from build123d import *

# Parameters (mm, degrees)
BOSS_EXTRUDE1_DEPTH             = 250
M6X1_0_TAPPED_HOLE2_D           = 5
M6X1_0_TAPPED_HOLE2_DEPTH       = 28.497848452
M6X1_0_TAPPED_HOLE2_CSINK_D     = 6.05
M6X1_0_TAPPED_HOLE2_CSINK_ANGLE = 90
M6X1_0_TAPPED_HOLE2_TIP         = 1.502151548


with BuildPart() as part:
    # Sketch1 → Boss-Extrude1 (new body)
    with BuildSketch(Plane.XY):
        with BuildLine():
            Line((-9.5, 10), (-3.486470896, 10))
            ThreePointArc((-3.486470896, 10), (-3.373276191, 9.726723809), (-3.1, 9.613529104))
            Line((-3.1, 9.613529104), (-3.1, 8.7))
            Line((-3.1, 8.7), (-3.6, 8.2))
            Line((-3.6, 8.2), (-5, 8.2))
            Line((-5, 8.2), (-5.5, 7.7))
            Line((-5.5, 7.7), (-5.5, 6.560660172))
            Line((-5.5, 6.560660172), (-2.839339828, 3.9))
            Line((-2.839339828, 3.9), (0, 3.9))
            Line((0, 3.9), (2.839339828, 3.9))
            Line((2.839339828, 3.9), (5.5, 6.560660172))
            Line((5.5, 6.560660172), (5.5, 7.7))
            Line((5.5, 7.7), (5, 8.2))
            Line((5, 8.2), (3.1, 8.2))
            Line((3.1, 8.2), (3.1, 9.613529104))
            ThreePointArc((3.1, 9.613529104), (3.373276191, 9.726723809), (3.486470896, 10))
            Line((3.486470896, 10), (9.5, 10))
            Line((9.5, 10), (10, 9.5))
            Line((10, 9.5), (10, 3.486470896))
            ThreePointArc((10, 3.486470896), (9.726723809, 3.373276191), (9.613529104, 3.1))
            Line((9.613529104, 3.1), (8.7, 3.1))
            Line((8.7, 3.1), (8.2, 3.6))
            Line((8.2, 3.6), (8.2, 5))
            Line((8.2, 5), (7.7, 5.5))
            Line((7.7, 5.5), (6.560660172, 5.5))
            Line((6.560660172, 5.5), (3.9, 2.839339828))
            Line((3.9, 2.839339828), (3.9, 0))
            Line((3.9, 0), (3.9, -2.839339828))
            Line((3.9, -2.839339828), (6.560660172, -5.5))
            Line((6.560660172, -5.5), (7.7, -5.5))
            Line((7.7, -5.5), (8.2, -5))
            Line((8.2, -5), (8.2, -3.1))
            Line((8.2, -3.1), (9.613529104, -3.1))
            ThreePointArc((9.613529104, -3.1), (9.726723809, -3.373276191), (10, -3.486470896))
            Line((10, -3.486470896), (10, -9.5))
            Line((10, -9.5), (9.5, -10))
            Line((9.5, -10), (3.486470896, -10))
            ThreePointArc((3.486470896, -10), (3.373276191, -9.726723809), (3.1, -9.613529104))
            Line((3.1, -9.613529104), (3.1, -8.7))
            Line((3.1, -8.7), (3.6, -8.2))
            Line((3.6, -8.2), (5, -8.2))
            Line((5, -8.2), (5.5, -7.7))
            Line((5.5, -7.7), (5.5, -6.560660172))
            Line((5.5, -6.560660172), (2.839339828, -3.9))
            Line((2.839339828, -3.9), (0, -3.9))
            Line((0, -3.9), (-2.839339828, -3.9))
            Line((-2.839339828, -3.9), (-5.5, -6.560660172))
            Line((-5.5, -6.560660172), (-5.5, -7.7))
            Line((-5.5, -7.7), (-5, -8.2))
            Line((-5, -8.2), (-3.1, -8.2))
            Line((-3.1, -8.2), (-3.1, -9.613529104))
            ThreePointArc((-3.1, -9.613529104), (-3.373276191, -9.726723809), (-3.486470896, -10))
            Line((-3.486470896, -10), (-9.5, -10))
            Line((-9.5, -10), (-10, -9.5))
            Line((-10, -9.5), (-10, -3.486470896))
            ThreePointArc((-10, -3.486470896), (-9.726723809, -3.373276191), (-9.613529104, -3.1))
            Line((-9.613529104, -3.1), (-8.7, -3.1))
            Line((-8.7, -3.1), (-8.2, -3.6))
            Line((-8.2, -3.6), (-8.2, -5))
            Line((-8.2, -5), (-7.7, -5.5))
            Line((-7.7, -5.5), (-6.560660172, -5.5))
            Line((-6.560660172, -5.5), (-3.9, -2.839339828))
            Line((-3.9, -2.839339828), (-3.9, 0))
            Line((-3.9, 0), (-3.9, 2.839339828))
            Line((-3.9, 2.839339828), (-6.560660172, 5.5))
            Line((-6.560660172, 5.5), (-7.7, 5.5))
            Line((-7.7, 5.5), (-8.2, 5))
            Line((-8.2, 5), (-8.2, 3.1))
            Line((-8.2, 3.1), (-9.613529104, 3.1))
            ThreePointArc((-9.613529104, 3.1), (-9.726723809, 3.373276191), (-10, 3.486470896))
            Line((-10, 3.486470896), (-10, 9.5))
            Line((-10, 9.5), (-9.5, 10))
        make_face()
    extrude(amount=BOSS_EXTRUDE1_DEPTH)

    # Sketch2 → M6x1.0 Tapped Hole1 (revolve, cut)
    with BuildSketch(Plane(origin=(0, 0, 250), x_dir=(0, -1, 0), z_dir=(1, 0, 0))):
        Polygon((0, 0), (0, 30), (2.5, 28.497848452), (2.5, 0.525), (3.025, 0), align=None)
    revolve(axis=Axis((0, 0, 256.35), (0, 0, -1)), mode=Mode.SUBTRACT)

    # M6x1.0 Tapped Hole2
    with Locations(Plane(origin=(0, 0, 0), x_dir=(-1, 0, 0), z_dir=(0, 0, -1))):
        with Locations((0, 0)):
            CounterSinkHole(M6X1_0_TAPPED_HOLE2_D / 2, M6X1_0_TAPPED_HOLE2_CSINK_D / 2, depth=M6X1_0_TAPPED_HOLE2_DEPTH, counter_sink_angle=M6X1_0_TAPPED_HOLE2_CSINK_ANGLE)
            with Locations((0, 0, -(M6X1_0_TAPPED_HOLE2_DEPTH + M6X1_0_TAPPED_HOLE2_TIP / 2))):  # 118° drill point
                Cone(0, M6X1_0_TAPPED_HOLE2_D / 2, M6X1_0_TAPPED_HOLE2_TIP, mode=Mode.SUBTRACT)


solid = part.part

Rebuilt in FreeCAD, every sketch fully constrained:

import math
import FreeCAD as App
import Part
import Sketcher
Q = App.Units.Quantity

doc = App.newDocument("Part")
body = doc.addObject("PartDesign::Body", "Body")

# Sketch on XY plane
sketch1 = doc.addObject("Sketcher::SketchObject", "Sketch")
body.addObject(sketch1)
sketch1.AttachmentSupport = (doc.XY_Plane, [""])
sketch1.MapMode = "FlatFace"
sketch1.addGeometry([
    Part.LineSegment(App.Vector(-3.486471, 10, 0), App.Vector(-9.5, 10, 0)),  # 0
    Part.LineSegment(App.Vector(-9.5, 10, 0), App.Vector(-10, 9.5, 0)),  # 1
    Part.LineSegment(App.Vector(-10, 9.5, 0), App.Vector(-10, 3.486471, 0)),  # 2
    Part.ArcOfCircle(Part.Circle(App.Vector(-10, 3.1, 0), App.Vector(0, 0, 1), 0.386471), math.radians(0), math.radians(90)),  # 3
    Part.LineSegment(App.Vector(-9.613529, 3.1, 0), App.Vector(-8.2, 3.1, 0)),  # 4
    Part.LineSegment(App.Vector(-8.2, 3.1, 0), App.Vector(-8.2, 5, 0)),  # 5
    Part.LineSegment(App.Vector(-8.2, 5, 0), App.Vector(-7.7, 5.5, 0)),  # 6
    Part.LineSegment(App.Vector(-7.7, 5.5, 0), App.Vector(-6.56066, 5.5, 0)),  # 7
    Part.LineSegment(App.Vector(-6.56066, 5.5, 0), App.Vector(-3.9, 2.83934, 0)),  # 8
    Part.LineSegment(App.Vector(-3.9, 2.83934, 0), App.Vector(-3.9, -2.83934, 0)),  # 9
    Part.LineSegment(App.Vector(-3.9, -2.83934, 0), App.Vector(-6.56066, -5.5, 0)),  # 10
    Part.LineSegment(App.Vector(-6.56066, -5.5, 0), App.Vector(-7.7, -5.5, 0)),  # 11
    Part.LineSegment(App.Vector(-7.7, -5.5, 0), App.Vector(-8.2, -5, 0)),  # 12
    Part.LineSegment(App.Vector(-8.2, -5, 0), App.Vector(-8.2, -3.6, 0)),  # 13
    Part.LineSegment(App.Vector(-8.2, -3.6, 0), App.Vector(-8.7, -3.1, 0)),  # 14
    Part.LineSegment(App.Vector(-8.7, -3.1, 0), App.Vector(-9.613529, -3.1, 0)),  # 15
    Part.ArcOfCircle(Part.Circle(App.Vector(-10, -3.1, 0), App.Vector(0, 0, 1), 0.386471), math.radians(-90), math.radians(0)),  # 16
    Part.LineSegment(App.Vector(-10, -3.486471, 0), App.Vector(-10, -9.5, 0)),  # 17
    Part.LineSegment(App.Vector(-10, -9.5, 0), App.Vector(-9.5, -10, 0)),  # 18
    Part.LineSegment(App.Vector(-9.5, -10, 0), App.Vector(-3.486471, -10, 0)),  # 19
    Part.ArcOfCircle(Part.Circle(App.Vector(-3.1, -10, 0), App.Vector(0, 0, 1), 0.386471), math.radians(90), math.radians(180)),  # 20
    Part.LineSegment(App.Vector(-3.1, -9.613529, 0), App.Vector(-3.1, -8.2, 0)),  # 21
    Part.LineSegment(App.Vector(-3.1, -8.2, 0), App.Vector(-5, -8.2, 0)),  # 22
    Part.LineSegment(App.Vector(-5, -8.2, 0), App.Vector(-5.5, -7.7, 0)),  # 23
    Part.LineSegment(App.Vector(-5.5, -7.7, 0), App.Vector(-5.5, -6.56066, 0)),  # 24
    Part.LineSegment(App.Vector(-5.5, -6.56066, 0), App.Vector(-2.83934, -3.9, 0)),  # 25
    Part.LineSegment(App.Vector(-2.83934, -3.9, 0), App.Vector(2.83934, -3.9, 0)),  # 26
    Part.LineSegment(App.Vector(2.83934, -3.9, 0), App.Vector(5.5, -6.56066, 0)),  # 27
    Part.LineSegment(App.Vector(5.5, -6.56066, 0), App.Vector(5.5, -7.7, 0)),  # 28
    Part.LineSegment(App.Vector(5.5, -7.7, 0), App.Vector(5, -8.2, 0)),  # 29
    Part.LineSegment(App.Vector(5, -8.2, 0), App.Vector(3.6, -8.2, 0)),  # 30
    Part.LineSegment(App.Vector(3.6, -8.2, 0), App.Vector(3.1, -8.7, 0)),  # 31
    Part.LineSegment(App.Vector(3.1, -8.7, 0), App.Vector(3.1, -9.613529, 0)),  # 32
    Part.ArcOfCircle(Part.Circle(App.Vector(3.1, -10, 0), App.Vector(0, 0, 1), 0.386471), math.radians(0), math.radians(90)),  # 33
    Part.LineSegment(App.Vector(3.486471, -10, 0), App.Vector(9.5, -10, 0)),  # 34
    Part.LineSegment(App.Vector(9.5, -10, 0), App.Vector(10, -9.5, 0)),  # 35
    Part.LineSegment(App.Vector(10, -9.5, 0), App.Vector(10, -3.486471, 0)),  # 36
    Part.ArcOfCircle(Part.Circle(App.Vector(10, -3.1, 0), App.Vector(0, 0, 1), 0.386471), math.radians(-180), math.radians(-90)),  # 37
    Part.LineSegment(App.Vector(9.613529, -3.1, 0), App.Vector(8.2, -3.1, 0)),  # 38
    Part.LineSegment(App.Vector(8.2, -3.1, 0), App.Vector(8.2, -5, 0)),  # 39
    Part.LineSegment(App.Vector(8.2, -5, 0), App.Vector(7.7, -5.5, 0)),  # 40
    Part.LineSegment(App.Vector(7.7, -5.5, 0), App.Vector(6.56066, -5.5, 0)),  # 41
    Part.LineSegment(App.Vector(6.56066, -5.5, 0), App.Vector(3.9, -2.83934, 0)),  # 42
    Part.LineSegment(App.Vector(3.9, -2.83934, 0), App.Vector(3.9, 2.83934, 0)),  # 43
    Part.LineSegment(App.Vector(3.9, 2.83934, 0), App.Vector(6.56066, 5.5, 0)),  # 44
    Part.LineSegment(App.Vector(6.56066, 5.5, 0), App.Vector(7.7, 5.5, 0)),  # 45
    Part.LineSegment(App.Vector(7.7, 5.5, 0), App.Vector(8.2, 5, 0)),  # 46
    Part.LineSegment(App.Vector(8.2, 5, 0), App.Vector(8.2, 3.6, 0)),  # 47
    Part.LineSegment(App.Vector(8.2, 3.6, 0), App.Vector(8.7, 3.1, 0)),  # 48
    Part.LineSegment(App.Vector(8.7, 3.1, 0), App.Vector(9.613529, 3.1, 0)),  # 49
    Part.ArcOfCircle(Part.Circle(App.Vector(10, 3.1, 0), App.Vector(0, 0, 1), 0.386471), math.radians(90), math.radians(180)),  # 50
    Part.LineSegment(App.Vector(10, 3.486471, 0), App.Vector(10, 9.5, 0)),  # 51
    Part.LineSegment(App.Vector(10, 9.5, 0), App.Vector(9.5, 10, 0)),  # 52
    Part.LineSegment(App.Vector(9.5, 10, 0), App.Vector(3.486471, 10, 0)),  # 53
    Part.ArcOfCircle(Part.Circle(App.Vector(3.1, 10, 0), App.Vector(0, 0, 1), 0.386471), math.radians(-90), math.radians(0)),  # 54
    Part.LineSegment(App.Vector(3.1, 9.613529, 0), App.Vector(3.1, 8.2, 0)),  # 55
    Part.LineSegment(App.Vector(3.1, 8.2, 0), App.Vector(5, 8.2, 0)),  # 56
    Part.LineSegment(App.Vector(5, 8.2, 0), App.Vector(5.5, 7.7, 0)),  # 57
    Part.LineSegment(App.Vector(5.5, 7.7, 0), App.Vector(5.5, 6.56066, 0)),  # 58
    Part.LineSegment(App.Vector(5.5, 6.56066, 0), App.Vector(2.83934, 3.9, 0)),  # 59
    Part.LineSegment(App.Vector(2.83934, 3.9, 0), App.Vector(-2.83934, 3.9, 0)),  # 60
    Part.LineSegment(App.Vector(-2.83934, 3.9, 0), App.Vector(-5.5, 6.56066, 0)),  # 61
    Part.LineSegment(App.Vector(-5.5, 6.56066, 0), App.Vector(-5.5, 7.7, 0)),  # 62
    Part.LineSegment(App.Vector(-5.5, 7.7, 0), App.Vector(-5, 8.2, 0)),  # 63
    Part.LineSegment(App.Vector(-5, 8.2, 0), App.Vector(-3.6, 8.2, 0)),  # 64
    Part.LineSegment(App.Vector(-3.6, 8.2, 0), App.Vector(-3.1, 8.7, 0)),  # 65
    Part.LineSegment(App.Vector(-3.1, 8.7, 0), App.Vector(-3.1, 9.613529, 0)),  # 66
    Part.ArcOfCircle(Part.Circle(App.Vector(-3.1, 10, 0), App.Vector(0, 0, 1), 0.386471), math.radians(-180), math.radians(-90)),  # 67
], False)
sketch1.addConstraint([
    Sketcher.Constraint("Coincident", 0, 2, 1, 1),
    Sketcher.Constraint("Coincident", 1, 2, 2, 1),
    Sketcher.Constraint("Coincident", 2, 2, 3, 2),
    Sketcher.Constraint("Coincident", 3, 1, 4, 1),
    Sketcher.Constraint("Coincident", 4, 2, 5, 1),
    Sketcher.Constraint("Coincident", 5, 2, 6, 1),
    Sketcher.Constraint("Coincident", 6, 2, 7, 1),
    Sketcher.Constraint("Coincident", 7, 2, 8, 1),
    Sketcher.Constraint("Coincident", 8, 2, 9, 1),
    Sketcher.Constraint("Coincident", 9, 2, 10, 1),
    Sketcher.Constraint("Coincident", 10, 2, 11, 1),
    Sketcher.Constraint("Coincident", 11, 2, 12, 1),
    Sketcher.Constraint("Coincident", 12, 2, 13, 1),
    Sketcher.Constraint("Coincident", 13, 2, 14, 1),
    Sketcher.Constraint("Coincident", 14, 2, 15, 1),
    Sketcher.Constraint("Coincident", 15, 2, 16, 2),
    Sketcher.Constraint("Coincident", 16, 1, 17, 1),
    Sketcher.Constraint("Coincident", 17, 2, 18, 1),
    Sketcher.Constraint("Coincident", 18, 2, 19, 1),
    Sketcher.Constraint("Coincident", 19, 2, 20, 2),
    Sketcher.Constraint("Coincident", 20, 1, 21, 1),
    Sketcher.Constraint("Coincident", 21, 2, 22, 1),
    Sketcher.Constraint("Coincident", 22, 2, 23, 1),
    Sketcher.Constraint("Coincident", 23, 2, 24, 1),
    Sketcher.Constraint("Coincident", 24, 2, 25, 1),
    Sketcher.Constraint("Coincident", 25, 2, 26, 1),
    Sketcher.Constraint("Coincident", 26, 2, 27, 1),
    Sketcher.Constraint("Coincident", 27, 2, 28, 1),
    Sketcher.Constraint("Coincident", 28, 2, 29, 1),
    Sketcher.Constraint("Coincident", 29, 2, 30, 1),
    Sketcher.Constraint("Coincident", 30, 2, 31, 1),
    Sketcher.Constraint("Coincident", 31, 2, 32, 1),
    Sketcher.Constraint("Coincident", 32, 2, 33, 2),
    Sketcher.Constraint("Coincident", 33, 1, 34, 1),
    Sketcher.Constraint("Coincident", 34, 2, 35, 1),
    Sketcher.Constraint("Coincident", 35, 2, 36, 1),
    Sketcher.Constraint("Coincident", 36, 2, 37, 2),
    Sketcher.Constraint("Coincident", 37, 1, 38, 1),
    Sketcher.Constraint("Coincident", 38, 2, 39, 1),
    Sketcher.Constraint("Coincident", 39, 2, 40, 1),
    Sketcher.Constraint("Coincident", 40, 2, 41, 1),
    Sketcher.Constraint("Coincident", 41, 2, 42, 1),
    Sketcher.Constraint("Coincident", 42, 2, 43, 1),
    Sketcher.Constraint("Coincident", 43, 2, 44, 1),
    Sketcher.Constraint("Coincident", 44, 2, 45, 1),
    Sketcher.Constraint("Coincident", 45, 2, 46, 1),
    Sketcher.Constraint("Coincident", 46, 2, 47, 1),
    Sketcher.Constraint("Coincident", 47, 2, 48, 1),
    Sketcher.Constraint("Coincident", 48, 2, 49, 1),
    Sketcher.Constraint("Coincident", 49, 2, 50, 2),
    Sketcher.Constraint("Coincident", 50, 1, 51, 1),
    Sketcher.Constraint("Coincident", 51, 2, 52, 1),
    Sketcher.Constraint("Coincident", 52, 2, 53, 1),
    Sketcher.Constraint("Coincident", 53, 2, 54, 2),
    Sketcher.Constraint("Coincident", 54, 1, 55, 1),
    Sketcher.Constraint("Coincident", 55, 2, 56, 1),
    Sketcher.Constraint("Coincident", 56, 2, 57, 1),
    Sketcher.Constraint("Coincident", 57, 2, 58, 1),
    Sketcher.Constraint("Coincident", 58, 2, 59, 1),
    Sketcher.Constraint("Coincident", 59, 2, 60, 1),
    Sketcher.Constraint("Coincident", 60, 2, 61, 1),
    Sketcher.Constraint("Coincident", 61, 2, 62, 1),
    Sketcher.Constraint("Coincident", 62, 2, 63, 1),
    Sketcher.Constraint("Coincident", 63, 2, 64, 1),
    Sketcher.Constraint("Coincident", 64, 2, 65, 1),
    Sketcher.Constraint("Coincident", 65, 2, 66, 1),
    Sketcher.Constraint("Coincident", 66, 2, 67, 2),
    Sketcher.Constraint("Coincident", 67, 1, 0, 1),
    Sketcher.Constraint("Horizontal", 0),
    Sketcher.Constraint("Vertical", 2),
    Sketcher.Constraint("Horizontal", 4),
    Sketcher.Constraint("Vertical", 5),
    Sketcher.Constraint("Horizontal", 7),
    Sketcher.Constraint("Vertical", 9),
    Sketcher.Constraint("Horizontal", 11),
    Sketcher.Constraint("Vertical", 13),
    Sketcher.Constraint("Horizontal", 15),
    Sketcher.Constraint("Vertical", 17),
    Sketcher.Constraint("Horizontal", 19),
    Sketcher.Constraint("Vertical", 21),
    Sketcher.Constraint("Horizontal", 22),
    Sketcher.Constraint("Vertical", 24),
    Sketcher.Constraint("Horizontal", 26),
    Sketcher.Constraint("Vertical", 28),
    Sketcher.Constraint("Horizontal", 30),
    Sketcher.Constraint("Vertical", 32),
    Sketcher.Constraint("Horizontal", 34),
    Sketcher.Constraint("Vertical", 36),
    Sketcher.Constraint("Horizontal", 38),
    Sketcher.Constraint("Vertical", 39),
    Sketcher.Constraint("Horizontal", 41),
    Sketcher.Constraint("Vertical", 43),
    Sketcher.Constraint("Horizontal", 45),
    Sketcher.Constraint("Vertical", 47),
    Sketcher.Constraint("Horizontal", 49),
    Sketcher.Constraint("Vertical", 51),
    Sketcher.Constraint("Horizontal", 53),
    Sketcher.Constraint("Vertical", 55),
    Sketcher.Constraint("Horizontal", 56),
    Sketcher.Constraint("Vertical", 58),
    Sketcher.Constraint("Horizontal", 60),
    Sketcher.Constraint("Vertical", 62),
    Sketcher.Constraint("Horizontal", 64),
    Sketcher.Constraint("Vertical", 66),
    Sketcher.Constraint("Equal", 3, 16),
    Sketcher.Constraint("Equal", 16, 20),
    Sketcher.Constraint("Equal", 20, 33),
    Sketcher.Constraint("Equal", 33, 37),
    Sketcher.Constraint("Equal", 37, 50),
    Sketcher.Constraint("Equal", 50, 54),
    Sketcher.Constraint("Equal", 54, 67),
    Sketcher.Constraint("Symmetric", 3, 3, 37, 3, -1, 1),
    Sketcher.Constraint("Symmetric", 16, 3, 50, 3, -1, 1),
    Sketcher.Constraint("Symmetric", 20, 3, 54, 3, -1, 1),
    Sketcher.Constraint("Symmetric", 33, 3, 67, 3, -1, 1),
    Sketcher.Constraint("Symmetric", 0, 2, 34, 2, -1, 1),
    Sketcher.Constraint("Symmetric", 1, 2, 35, 2, -1, 1),
    Sketcher.Constraint("Symmetric", 4, 2, 38, 2, -1, 1),
    Sketcher.Constraint("Symmetric", 6, 2, 40, 2, -1, 1),
    Sketcher.Constraint("Symmetric", 8, 2, 42, 2, -1, 1),
    Sketcher.Constraint("Symmetric", 10, 2, 44, 2, -1, 1),
    Sketcher.Constraint("Symmetric", 12, 2, 46, 2, -1, 1),
    Sketcher.Constraint("Symmetric", 14, 2, 48, 2, -1, 1),
    Sketcher.Constraint("Symmetric", 17, 2, 51, 2, -1, 1),
    Sketcher.Constraint("Symmetric", 18, 2, 52, 2, -1, 1),
    Sketcher.Constraint("Symmetric", 21, 2, 55, 2, -1, 1),
    Sketcher.Constraint("Symmetric", 23, 2, 57, 2, -1, 1),
    Sketcher.Constraint("Symmetric", 25, 2, 59, 2, -1, 1),
    Sketcher.Constraint("Symmetric", 27, 2, 61, 2, -1, 1),
    Sketcher.Constraint("Symmetric", 29, 2, 63, 2, -1, 1),
    Sketcher.Constraint("Symmetric", 31, 2, 65, 2, -1, 1),
    Sketcher.Constraint("Symmetric", 20, 3, 33, 3, -2),
    Sketcher.Constraint("Symmetric", 16, 3, 37, 3, -2),
    Sketcher.Constraint("Symmetric", 24, 2, 27, 2, -2),
    Sketcher.Constraint("Symmetric", 22, 2, 29, 2, -2),
    Sketcher.Constraint("Symmetric", 18, 2, 34, 2, -2),
    Sketcher.Constraint("Symmetric", 17, 2, 35, 2, -2),
    Sketcher.Constraint("Symmetric", 12, 2, 39, 2, -2),
    Sketcher.Constraint("Symmetric", 11, 2, 40, 2, -2),
    Sketcher.Constraint("Parallel", 1, 6),
    Sketcher.Constraint("Perpendicular", 6, 8),
    Sketcher.Constraint("Perpendicular", 8, 10),
    Sketcher.Constraint("Perpendicular", 10, 12),
    Sketcher.Constraint("Parallel", 12, 14),
    Sketcher.Constraint("Parallel", 14, 18),
    Sketcher.Constraint("Parallel", 18, 23),
    Sketcher.Constraint("Perpendicular", 23, 25),
    Sketcher.Constraint("Perpendicular", 25, 27),
    Sketcher.Constraint("Perpendicular", 27, 29),
    Sketcher.Constraint("Parallel", 29, 31),
    Sketcher.Constraint("Perpendicular", 40, 42),
    Sketcher.Constraint("Perpendicular", 42, 44),
    Sketcher.Constraint("Perpendicular", 44, 46),
    Sketcher.Constraint("Parallel", 46, 48),
    Sketcher.Constraint("Parallel", 52, 57),
    Sketcher.Constraint("Perpendicular", 57, 59),
    Sketcher.Constraint("Perpendicular", 59, 61),
    Sketcher.Constraint("Perpendicular", 61, 63),
    Sketcher.Constraint("Parallel", 63, 65),
    Sketcher.Constraint("Horizontal", 67, 3, 0, 2),
    Sketcher.Constraint("Horizontal", 50, 3, 3, 1),
    Sketcher.Constraint("Horizontal", 37, 3, 14, 2),
    Sketcher.Constraint("Horizontal", 9, 2, 42, 2),
    Sketcher.Constraint("Vertical", 16, 3, 1, 2),
    Sketcher.Constraint("Vertical", 67, 3, 20, 1),
    Sketcher.Constraint("Vertical", 54, 3, 31, 2),
    Sketcher.Constraint("Equal", 53, 2),
    Sketcher.Constraint("Equal", 56, 5),
    Sketcher.Constraint("Equal", 60, 9),
    Sketcher.Constraint("Equal", 64, 13),
    Sketcher.Constraint("Equal", 38, 21),
    Sketcher.Constraint("Equal", 45, 24),
    Sketcher.Constraint("Equal", 1, 6),
    Sketcher.Constraint("Equal", 12, 14),
    Sketcher.Constraint("Equal", 18, 23),
    Sketcher.Constraint("Equal", 10, 25),
    Sketcher.Constraint("DistanceX", 22, 2, 22, 1, 1.9),
    Sketcher.Constraint("DistanceX", 30, 2, 30, 1, 1.4),
    Sketcher.Constraint("DistanceX", 3, 3, -1, 1, 10.0),
    Sketcher.Constraint("DistanceY", -1, 1, 5, 2, 5.0),
    Sketcher.Constraint("DistanceX", 4, 2, -1, 1, 8.2),
    Sketcher.Constraint("DistanceX", 8, 2, -1, 1, 3.9),
    Sketcher.Constraint("Radius", 3, 0.386471),
    Sketcher.Constraint("DistanceX", 7, 1, 7, 2, 1.13934),
])
pad1 = doc.addObject("PartDesign::Pad", "Pad")
body.addObject(pad1)
pad1.Profile = sketch1
pad1.Length = 250

# Sketch on YZ plane
sketch2 = doc.addObject("Sketcher::SketchObject", "Sketch001")
body.addObject(sketch2)
sketch2.AttachmentSupport = (doc.YZ_Plane, [""])
sketch2.MapMode = "FlatFace"
sketch2.addGeometry([
    Part.LineSegment(App.Vector(0, 220, 0), App.Vector(0, 250, 0)),  # 0
    Part.LineSegment(App.Vector(0, 250, 0), App.Vector(-3.025, 250, 0)),  # 1
    Part.LineSegment(App.Vector(-3.025, 250, 0), App.Vector(-2.5, 249.475, 0)),  # 2
    Part.LineSegment(App.Vector(-2.5, 249.475, 0), App.Vector(-2.5, 221.502152, 0)),  # 3
    Part.LineSegment(App.Vector(-2.5, 221.502152, 0), App.Vector(0, 220, 0)),  # 4
], False)
sketch2.addConstraint([
    Sketcher.Constraint("Coincident", 0, 2, 1, 1),
    Sketcher.Constraint("Coincident", 1, 2, 2, 1),
    Sketcher.Constraint("Coincident", 2, 2, 3, 1),
    Sketcher.Constraint("Coincident", 3, 2, 4, 1),
    Sketcher.Constraint("Coincident", 4, 2, 0, 1),
    Sketcher.Constraint("Vertical", 0),
    Sketcher.Constraint("Horizontal", 1),
    Sketcher.Constraint("Vertical", 3),
    Sketcher.Constraint("PointOnObject", 0, 2, -2),
    Sketcher.Constraint("DistanceY", 0, 1, 0, 2, 30.0),
    Sketcher.Constraint("Angle", 2, Q("-45 deg")),
    Sketcher.Constraint("Angle", 4, Q("-31 deg")),
    Sketcher.Constraint("DistanceY", -1, 1, 0, 2, 250.0),
    Sketcher.Constraint("DistanceX", 2, 2, -1, 1, 2.5),
    Sketcher.Constraint("DistanceX", 1, 2, 1, 1, 3.025),
])
groove = doc.addObject("PartDesign::Groove", "Groove")
body.addObject(groove)
groove.Profile = sketch2
groove.ReferenceAxis = (sketch2, ["V_Axis"])
groove.Angle = 360

# Sketch on XY plane
sketch3 = doc.addObject("Sketcher::SketchObject", "Sketch002")
body.addObject(sketch3)
sketch3.AttachmentSupport = (doc.XY_Plane, [""])
sketch3.MapMode = "FlatFace"
sketch3.addGeometry(Part.Circle(App.Vector(0, 0, 0), App.Vector(0, 0, 1), 2.5), False)
sketch3.addConstraint([
    Sketcher.Constraint("Coincident", 0, 3, -1, 1),
    Sketcher.Constraint("Diameter", 0, 5.0),
])
doc.recompute()
hole = doc.addObject("PartDesign::Hole", "Hole")
body.addObject(hole)
hole.Profile = sketch3
hole.ThreadType = "None"
hole.Diameter = 5
hole.DepthType = "Dimension"
hole.Depth = 28.497848
hole.DrillPoint = "Angled"
hole.DrillPointAngle = 118
hole.HoleCutType = "Countersink"
hole.HoleCutDiameter = 6.05
hole.HoleCutCountersinkAngle = 90
hole.Reversed = True

doc.recompute()
